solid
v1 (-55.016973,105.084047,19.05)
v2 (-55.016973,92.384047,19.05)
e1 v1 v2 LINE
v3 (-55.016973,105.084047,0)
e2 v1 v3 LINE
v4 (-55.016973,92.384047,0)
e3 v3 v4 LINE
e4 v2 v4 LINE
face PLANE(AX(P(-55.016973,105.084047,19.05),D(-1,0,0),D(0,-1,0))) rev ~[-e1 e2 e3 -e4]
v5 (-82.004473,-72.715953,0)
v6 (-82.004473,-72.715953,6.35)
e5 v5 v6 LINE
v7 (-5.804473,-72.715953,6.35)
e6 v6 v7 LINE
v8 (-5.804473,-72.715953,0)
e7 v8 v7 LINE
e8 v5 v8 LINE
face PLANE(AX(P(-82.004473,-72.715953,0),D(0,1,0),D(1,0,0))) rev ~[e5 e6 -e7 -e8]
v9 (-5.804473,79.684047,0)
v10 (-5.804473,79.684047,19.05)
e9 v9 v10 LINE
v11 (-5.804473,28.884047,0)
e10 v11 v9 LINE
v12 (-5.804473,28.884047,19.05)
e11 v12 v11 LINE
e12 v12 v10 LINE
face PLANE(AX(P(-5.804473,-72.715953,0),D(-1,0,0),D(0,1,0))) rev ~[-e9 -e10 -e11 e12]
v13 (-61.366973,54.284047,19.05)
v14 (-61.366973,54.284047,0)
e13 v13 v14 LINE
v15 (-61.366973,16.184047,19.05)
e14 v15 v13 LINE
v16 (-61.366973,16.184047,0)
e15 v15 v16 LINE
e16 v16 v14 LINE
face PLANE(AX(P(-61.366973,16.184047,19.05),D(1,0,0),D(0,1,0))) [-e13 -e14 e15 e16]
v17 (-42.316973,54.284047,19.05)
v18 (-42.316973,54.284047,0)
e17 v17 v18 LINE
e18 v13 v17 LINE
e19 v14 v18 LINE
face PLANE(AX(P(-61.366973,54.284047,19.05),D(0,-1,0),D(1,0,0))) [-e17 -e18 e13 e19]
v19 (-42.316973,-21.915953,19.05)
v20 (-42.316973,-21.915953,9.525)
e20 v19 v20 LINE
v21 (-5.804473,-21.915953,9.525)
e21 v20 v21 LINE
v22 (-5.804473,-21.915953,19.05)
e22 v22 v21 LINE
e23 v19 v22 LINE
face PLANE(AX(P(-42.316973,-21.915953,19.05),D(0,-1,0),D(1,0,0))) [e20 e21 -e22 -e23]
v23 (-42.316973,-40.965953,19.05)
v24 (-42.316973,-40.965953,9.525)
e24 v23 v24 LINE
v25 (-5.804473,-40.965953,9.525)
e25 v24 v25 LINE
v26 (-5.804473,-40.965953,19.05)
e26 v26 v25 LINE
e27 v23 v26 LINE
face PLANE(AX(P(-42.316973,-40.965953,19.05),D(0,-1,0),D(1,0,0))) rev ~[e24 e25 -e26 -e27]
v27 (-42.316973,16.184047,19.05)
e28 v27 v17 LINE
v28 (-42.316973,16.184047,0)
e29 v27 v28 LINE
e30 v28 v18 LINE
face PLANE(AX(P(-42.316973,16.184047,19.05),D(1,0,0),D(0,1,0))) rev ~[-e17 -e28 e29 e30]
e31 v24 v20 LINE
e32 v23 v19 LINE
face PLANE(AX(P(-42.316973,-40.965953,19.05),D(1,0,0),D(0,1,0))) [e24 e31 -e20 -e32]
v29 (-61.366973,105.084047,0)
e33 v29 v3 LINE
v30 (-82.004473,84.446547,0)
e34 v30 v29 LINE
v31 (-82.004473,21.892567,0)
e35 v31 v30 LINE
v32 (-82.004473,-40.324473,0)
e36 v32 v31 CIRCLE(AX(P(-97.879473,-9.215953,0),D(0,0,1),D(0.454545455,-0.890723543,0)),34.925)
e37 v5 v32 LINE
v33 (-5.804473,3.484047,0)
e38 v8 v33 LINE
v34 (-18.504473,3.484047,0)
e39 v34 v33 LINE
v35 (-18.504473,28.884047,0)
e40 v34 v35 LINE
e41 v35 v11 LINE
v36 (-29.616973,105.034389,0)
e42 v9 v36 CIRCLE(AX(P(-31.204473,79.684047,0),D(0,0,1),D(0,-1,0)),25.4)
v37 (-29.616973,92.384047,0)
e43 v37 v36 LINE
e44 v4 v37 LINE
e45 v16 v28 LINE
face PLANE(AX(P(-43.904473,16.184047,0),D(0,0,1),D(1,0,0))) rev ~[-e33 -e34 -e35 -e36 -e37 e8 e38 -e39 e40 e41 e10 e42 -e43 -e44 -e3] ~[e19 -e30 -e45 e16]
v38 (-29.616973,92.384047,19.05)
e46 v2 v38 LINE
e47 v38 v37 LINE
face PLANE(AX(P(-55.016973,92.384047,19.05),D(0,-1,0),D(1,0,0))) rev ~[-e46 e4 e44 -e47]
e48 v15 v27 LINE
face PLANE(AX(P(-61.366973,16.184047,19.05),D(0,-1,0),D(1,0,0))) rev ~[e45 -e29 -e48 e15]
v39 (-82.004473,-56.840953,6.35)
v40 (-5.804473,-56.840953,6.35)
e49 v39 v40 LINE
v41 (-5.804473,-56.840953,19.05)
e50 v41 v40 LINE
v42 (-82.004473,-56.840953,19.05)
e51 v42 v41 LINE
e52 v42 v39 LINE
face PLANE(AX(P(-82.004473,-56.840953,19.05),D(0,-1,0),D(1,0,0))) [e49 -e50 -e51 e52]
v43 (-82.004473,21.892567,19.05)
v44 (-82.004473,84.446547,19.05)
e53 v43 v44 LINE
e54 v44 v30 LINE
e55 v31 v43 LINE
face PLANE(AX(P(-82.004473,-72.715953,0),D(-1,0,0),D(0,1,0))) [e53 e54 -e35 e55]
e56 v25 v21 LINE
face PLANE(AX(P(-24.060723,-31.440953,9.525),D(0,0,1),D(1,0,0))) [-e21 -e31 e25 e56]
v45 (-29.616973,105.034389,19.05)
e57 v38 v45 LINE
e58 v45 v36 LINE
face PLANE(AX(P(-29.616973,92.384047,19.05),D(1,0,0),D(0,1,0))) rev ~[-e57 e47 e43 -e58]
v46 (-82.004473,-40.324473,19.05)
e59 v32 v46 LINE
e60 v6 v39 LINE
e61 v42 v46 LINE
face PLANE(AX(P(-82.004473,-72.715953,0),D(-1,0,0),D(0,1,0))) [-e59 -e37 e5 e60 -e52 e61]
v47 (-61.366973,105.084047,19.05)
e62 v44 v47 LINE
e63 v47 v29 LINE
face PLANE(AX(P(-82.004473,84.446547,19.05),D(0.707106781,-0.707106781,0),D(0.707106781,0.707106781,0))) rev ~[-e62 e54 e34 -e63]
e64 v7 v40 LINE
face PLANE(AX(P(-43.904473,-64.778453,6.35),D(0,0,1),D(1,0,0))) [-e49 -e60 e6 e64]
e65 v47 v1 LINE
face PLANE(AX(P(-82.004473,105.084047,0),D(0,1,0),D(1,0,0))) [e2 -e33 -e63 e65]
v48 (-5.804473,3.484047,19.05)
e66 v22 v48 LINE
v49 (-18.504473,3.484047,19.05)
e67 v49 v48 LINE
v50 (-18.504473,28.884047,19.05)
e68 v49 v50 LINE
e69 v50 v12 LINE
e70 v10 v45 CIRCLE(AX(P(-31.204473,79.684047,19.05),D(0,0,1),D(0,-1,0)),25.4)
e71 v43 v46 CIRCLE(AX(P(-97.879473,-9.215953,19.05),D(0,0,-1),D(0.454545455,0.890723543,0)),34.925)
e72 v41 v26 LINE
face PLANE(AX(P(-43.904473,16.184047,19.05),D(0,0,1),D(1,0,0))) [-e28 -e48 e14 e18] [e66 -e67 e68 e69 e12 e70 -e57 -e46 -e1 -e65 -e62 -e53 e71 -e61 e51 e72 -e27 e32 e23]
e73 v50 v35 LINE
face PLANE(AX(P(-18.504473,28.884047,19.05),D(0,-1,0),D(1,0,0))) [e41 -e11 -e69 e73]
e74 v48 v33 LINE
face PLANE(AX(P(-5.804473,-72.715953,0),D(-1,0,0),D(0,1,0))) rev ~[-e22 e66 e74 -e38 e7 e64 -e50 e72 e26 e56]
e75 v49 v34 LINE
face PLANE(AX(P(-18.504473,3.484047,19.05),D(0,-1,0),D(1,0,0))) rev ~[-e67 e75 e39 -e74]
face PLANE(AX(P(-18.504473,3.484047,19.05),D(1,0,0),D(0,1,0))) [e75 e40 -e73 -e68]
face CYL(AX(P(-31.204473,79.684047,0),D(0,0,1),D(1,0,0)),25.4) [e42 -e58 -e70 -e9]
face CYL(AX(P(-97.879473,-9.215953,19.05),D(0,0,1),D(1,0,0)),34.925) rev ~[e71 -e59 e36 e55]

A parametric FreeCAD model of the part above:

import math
import FreeCAD as App
import Part
import Sketcher

V = App.Vector
Q = App.Units.Quantity


def edges_at(feature, points):
    """Names of the edges that pass closest to the given points."""
    edges = feature.Shape.Edges
    near = lambda p: min(range(len(edges)), key=lambda i: edges[i].distToShape(Part.Vertex(*p))[0])
    return sorted({f"Edge{near(p) + 1}" for p in points})


def add_polygon(sketch, points):
    """Adds a closed chain of lines whose ends are joined by coincident constraints."""
    first, n = sketch.GeometryCount, len(points)
    for a, b in zip(points, points[1:] + points[:1]):
        sketch.addGeometry(Part.LineSegment(App.Vector(*a, 0), App.Vector(*b, 0)), False)
    for i in range(n):
        sketch.addConstraint(Sketcher.Constraint("Coincident", first + i, 2, first + (i + 1) % n, 1))

doc = App.newDocument("Part")
body = doc.addObject("PartDesign::Body", "Body")

# Sketch on XY plane
sketch1 = doc.addObject("Sketcher::SketchObject", "Sketch")
body.addObject(sketch1)
sketch1.AttachmentSupport = (doc.XY_Plane, [""])
sketch1.MapMode = "FlatFace"
add_polygon(sketch1, [(-82, 105), (-82, -73), (-6, -73), (-6, 105)])  # lines 0-3
sketch1.addConstraint([
    Sketcher.Constraint("Vertical", 0),
    Sketcher.Constraint("Horizontal", 1),
    Sketcher.Constraint("Vertical", 2),
    Sketcher.Constraint("Horizontal", 3),
    Sketcher.Constraint("DistanceX", 1, 1, 1, 2, Q("3 in")),
    Sketcher.Constraint("DistanceY", 0, 2, 0, 1, Q("7 in")),
    Sketcher.Constraint("DistanceX", 0, 2, -1, 1, Q("82.004473 mm")),
    Sketcher.Constraint("DistanceY", 0, 2, -1, 1, Q("72.715953 mm")),
])
pad1 = doc.addObject("PartDesign::Pad", "Pad")
body.addObject(pad1)
pad1.Profile = sketch1
pad1.Length = Q("0.75 in")
doc.recompute()

fillet = doc.addObject("PartDesign::Fillet", "Fillet")
body.addObject(fillet)
fillet.Base = (pad1, edges_at(pad1, [(-5.804, 105.084, 9.525)]))
fillet.Radius = Q("1 in")

# Sketch on XY plane
sketch2 = doc.addObject("Sketcher::SketchObject", "Sketch001")
body.addObject(sketch2)
sketch2.AttachmentSupport = (doc.XY_Plane, [""])
sketch2.MapMode = "FlatFace"
sketch2.AttachmentOffset = App.Placement(V(0, 0, 0.75 * 25.4), App.Rotation())
add_polygon(sketch2, [(-61, 105), (-82, 105), (-82, 84)])  # lines 0-2
sketch2.addConstraint([
    Sketcher.Constraint("Horizontal", 0),
    Sketcher.Constraint("Vertical", 1),
    Sketcher.Constraint("Equal", 0, 1),
    Sketcher.Constraint("DistanceX", 0, 2, 0, 1, Q("0.8125 in")),
    Sketcher.Constraint("DistanceX", 0, 2, -1, 1, Q("82.004473 mm")),
    Sketcher.Constraint("DistanceY", -1, 1, 0, 2, Q("105.084047 mm")),
])
pocket1 = doc.addObject("PartDesign::Pocket", "Pocket")
body.addObject(pocket1)
pocket1.Profile = sketch2
pocket1.Length = Q("1 in")

# Sketch on XY plane
sketch3 = doc.addObject("Sketcher::SketchObject", "Sketch002")
body.addObject(sketch3)
sketch3.AttachmentSupport = (doc.XY_Plane, [""])
sketch3.MapMode = "FlatFace"
sketch3.AttachmentOffset = App.Placement(V(0, 0, 0.75 * 25.4), App.Rotation())
sketch3.addGeometry([
    Part.LineSegment(V(-31.204473, 105.084047, 0), V(-55.016973, 105.084047, 0)),  # 0
    Part.LineSegment(V(-55.016973, 105.084047, 0), V(-55.016973, 92.384047, 0)),  # 1
    Part.LineSegment(V(-55.016973, 92.384047, 0), V(-29.616973, 92.384047, 0)),  # 2
    Part.LineSegment(V(-29.616973, 92.384047, 0), V(-29.616973, 105.034389, 0)),  # 3
    Part.ArcOfCircle(Part.Circle(V(-31.204501, 79.683189, 0), V(0, 0, 1), 25.400858), math.radians(86.416736), math.radians(89.999936)),  # 4
], False)
sketch3.addConstraint([
    Sketcher.Constraint("Coincident", 0, 2, 1, 1),
    Sketcher.Constraint("Coincident", 1, 2, 2, 1),
    Sketcher.Constraint("Coincident", 2, 2, 3, 1),
    Sketcher.Constraint("Coincident", 3, 2, 4, 1),
    Sketcher.Constraint("Tangent", 4, 2, 0, 1),
    Sketcher.Constraint("Horizontal", 0),
    Sketcher.Constraint("Vertical", 1),
    Sketcher.Constraint("Horizontal", 2),
    Sketcher.Constraint("Vertical", 3),
    Sketcher.Constraint("DistanceX", 2, 1, 2, 2, Q("1 in")),
    Sketcher.Constraint("DistanceY", 1, 2, 1, 1, Q("0.5 in")),
    Sketcher.Constraint("DistanceX", 0, 2, 0, 1, Q("0.9375 in")),
    Sketcher.Constraint("Radius", 4, Q("25.400858 mm")),
    Sketcher.Constraint("DistanceX", 4, 3, -1, 1, Q("31.204501 mm")),
    Sketcher.Constraint("DistanceY", -1, 1, 4, 3, Q("79.683189 mm")),
])
pocket2 = doc.addObject("PartDesign::Pocket", "Pocket001")
body.addObject(pocket2)
pocket2.Profile = sketch3
pocket2.Length = Q("1 in")

# Sketch on XY plane
sketch4 = doc.addObject("Sketcher::SketchObject", "Sketch003")
body.addObject(sketch4)
sketch4.AttachmentSupport = (doc.XY_Plane, [""])
sketch4.MapMode = "FlatFace"
sketch4.AttachmentOffset = App.Placement(V(0, 0, 0.75 * 25.4), App.Rotation())
add_polygon(sketch4, [(-82, -57), (-82, -73), (-6, -73), (-6, -57)])  # lines 0-3
sketch4.addConstraint([
    Sketcher.Constraint("Vertical", 0),
    Sketcher.Constraint("Horizontal", 1),
    Sketcher.Constraint("Vertical", 2),
    Sketcher.Constraint("Horizontal", 3),
    Sketcher.Constraint("DistanceX", 1, 1, 1, 2, Q("3 in")),
    Sketcher.Constraint("DistanceY", 0, 2, 0, 1, Q("0.625 in")),
    Sketcher.Constraint("DistanceX", 0, 2, -1, 1, Q("82.004473 mm")),
    Sketcher.Constraint("DistanceY", 0, 2, -1, 1, Q("72.715953 mm")),
])
pocket3 = doc.addObject("PartDesign::Pocket", "Pocket002")
body.addObject(pocket3)
pocket3.Profile = sketch4
pocket3.Length = Q("0.5 in")

# Sketch on XY plane
sketch5 = doc.addObject("Sketcher::SketchObject", "Sketch004")
body.addObject(sketch5)
sketch5.AttachmentSupport = (doc.XY_Plane, [""])
sketch5.MapMode = "FlatFace"
sketch5.AttachmentOffset = App.Placement(V(0, 0, 0.75 * 25.4), App.Rotation())
add_polygon(sketch5, [(-42, -22), (-42, -41), (-6, -41), (-6, -22)])  # lines 0-3
sketch5.addConstraint([
    Sketcher.Constraint("Vertical", 0),
    Sketcher.Constraint("Horizontal", 1),
    Sketcher.Constraint("Vertical", 2),
    Sketcher.Constraint("Horizontal", 3),
    Sketcher.Constraint("DistanceY", 0, 2, 0, 1, Q("0.75 in")),
    Sketcher.Constraint("DistanceX", 1, 1, 1, 2, Q("1.4375 in")),
    Sketcher.Constraint("DistanceX", 0, 2, -1, 1, Q("42.316973 mm")),
    Sketcher.Constraint("DistanceY", 0, 2, -1, 1, Q("40.965953 mm")),
])
pocket4 = doc.addObject("PartDesign::Pocket", "Pocket003")
body.addObject(pocket4)
pocket4.Profile = sketch5
pocket4.Length = Q("0.375 in")

# Sketch on XY plane
sketch6 = doc.addObject("Sketcher::SketchObject", "Sketch005")
body.addObject(sketch6)
sketch6.AttachmentSupport = (doc.XY_Plane, [""])
sketch6.MapMode = "FlatFace"
sketch6.AttachmentOffset = App.Placement(V(0, 0, 0.75 * 25.4), App.Rotation())
add_polygon(sketch6, [(-19, 29), (-19, 3), (-6, 3), (-6, 29)])  # lines 0-3
sketch6.addConstraint([
    Sketcher.Constraint("Vertical", 0),
    Sketcher.Constraint("Horizontal", 1),
    Sketcher.Constraint("Vertical", 2),
    Sketcher.Constraint("Horizontal", 3),
    Sketcher.Constraint("DistanceY", 0, 2, 0, 1, Q("1 in")),
    Sketcher.Constraint("DistanceX", 1, 1, 1, 2, Q("0.5 in")),
    Sketcher.Constraint("DistanceX", 0, 2, -1, 1, Q("18.504473 mm")),
    Sketcher.Constraint("DistanceY", -1, 1, 0, 2, Q("3.484047 mm")),
])
pocket5 = doc.addObject("PartDesign::Pocket", "Pocket004")
body.addObject(pocket5)
pocket5.Profile = sketch6
pocket5.Length = Q("1 in")

# Sketch on XY plane
sketch7 = doc.addObject("Sketcher::SketchObject", "Sketch006")
body.addObject(sketch7)
sketch7.AttachmentSupport = (doc.XY_Plane, [""])
sketch7.MapMode = "FlatFace"
sketch7.AttachmentOffset = App.Placement(V(0, 0, 0.75 * 25.4), App.Rotation())
sketch7.addGeometry(Part.Circle(V(-98, -9, 0), V(0, 0, 1), 35), False)
sketch7.addConstraint([
    Sketcher.Constraint("Diameter", 0, Q("2.75 in")),
    Sketcher.Constraint("DistanceX", 0, 3, -1, 1, Q("97.879473 mm")),
    Sketcher.Constraint("DistanceY", 0, 3, -1, 1, Q("9.215953 mm")),
])
pocket6 = doc.addObject("PartDesign::Pocket", "Pocket005")
body.addObject(pocket6)
pocket6.Profile = sketch7
pocket6.Length = Q("1 in")

# Sketch on XY plane
sketch8 = doc.addObject("Sketcher::SketchObject", "Sketch007")
body.addObject(sketch8)
sketch8.AttachmentSupport = (doc.XY_Plane, [""])
sketch8.MapMode = "FlatFace"
sketch8.AttachmentOffset = App.Placement(V(0, 0, 0.75 * 25.4), App.Rotation())
add_polygon(sketch8, [(-61, 54), (-61, 16), (-42, 16), (-42, 54)])  # lines 0-3
sketch8.addConstraint([
    Sketcher.Constraint("Vertical", 0),
    Sketcher.Constraint("Horizontal", 1),
    Sketcher.Constraint("Vertical", 2),
    Sketcher.Constraint("Horizontal", 3),
    Sketcher.Constraint("DistanceY", 0, 2, 0, 1, Q("1.5 in")),
    Sketcher.Constraint("DistanceX", 1, 1, 1, 2, Q("0.75 in")),
    Sketcher.Constraint("DistanceX", 0, 2, -1, 1, Q("61.366973 mm")),
    Sketcher.Constraint("DistanceY", -1, 1, 0, 2, Q("16.184047 mm")),
])
pocket7 = doc.addObject("PartDesign::Pocket", "Pocket006")
body.addObject(pocket7)
pocket7.Profile = sketch8
pocket7.Length = Q("1 in")

doc.recompute()
